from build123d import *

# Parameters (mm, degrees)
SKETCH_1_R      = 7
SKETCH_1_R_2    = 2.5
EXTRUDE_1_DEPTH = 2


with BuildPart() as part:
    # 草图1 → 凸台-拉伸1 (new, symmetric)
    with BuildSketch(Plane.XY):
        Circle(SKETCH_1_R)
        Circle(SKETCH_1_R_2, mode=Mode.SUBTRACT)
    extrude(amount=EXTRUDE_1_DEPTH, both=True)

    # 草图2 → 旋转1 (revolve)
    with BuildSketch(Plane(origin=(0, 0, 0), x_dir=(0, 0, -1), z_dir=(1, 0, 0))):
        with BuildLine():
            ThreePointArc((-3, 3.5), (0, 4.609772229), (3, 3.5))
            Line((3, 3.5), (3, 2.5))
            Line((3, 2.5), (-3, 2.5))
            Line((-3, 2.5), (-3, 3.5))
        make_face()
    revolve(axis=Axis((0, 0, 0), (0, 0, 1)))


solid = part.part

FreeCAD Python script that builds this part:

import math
import FreeCAD as App
import Part
import Sketcher

V = App.Vector
Q = App.Units.Quantity

doc = App.newDocument("Part")
body = doc.addObject("PartDesign::Body", "Body")

# Sketch on XY plane
sketch1 = body.newObject("Sketcher::SketchObject", "Sketch")
sketch1.AttachmentSupport = (doc.getObject("XY_Plane"), [""])
sketch1.MapMode = "FlatFace"
sketch1.addGeometry([
    Part.Circle(V(0, 0, 0), V(0, 0, 1), 7),
    Part.Circle(V(0, 0, 0), V(0, 0, 1), 2.5),
], False)
sketch1.addConstraint([
    Sketcher.Constraint("Coincident", 0, 3, -1, 1),
    Sketcher.Constraint("Coincident", 1, 3, -1, 1),
    Sketcher.Constraint("Diameter", 0, Q("14 mm")),
    Sketcher.Constraint("Diameter", 1, Q("5 mm")),
])
pad1 = body.newObject("PartDesign::Pad", "Pad")
pad1.Profile = sketch1
pad1.Length = 4
pad1.Midplane = True

# Sketch on YZ plane
sketch2 = body.newObject("Sketcher::SketchObject", "Sketch001")
sketch2.AttachmentSupport = (doc.getObject("YZ_Plane"), [""])
sketch2.MapMode = "FlatFace"
sketch2.addGeometry([
    Part.ArcOfCircle(Part.Circle(V(0, 0, 0), V(0, 0, 1), 4.609772), math.radians(-40.601295), math.radians(40.601295)),
    Part.LineSegment(V(3.5, 3, 0), V(2.5, 3, 0)),
    Part.LineSegment(V(2.5, 3, 0), V(2.5, -3, 0)),
    Part.LineSegment(V(2.5, -3, 0), V(3.5, -3, 0)),
], False)
sketch2.addConstraint([
    Sketcher.Constraint("Coincident", 0, 2, 1, 1),
    Sketcher.Constraint("Coincident", 1, 2, 2, 1),
    Sketcher.Constraint("Coincident", 2, 2, 3, 1),
    Sketcher.Constraint("Coincident", 3, 2, 0, 1),
    Sketcher.Constraint("Horizontal", 1),
    Sketcher.Constraint("Vertical", 2),
    Sketcher.Constraint("Horizontal", 3),
    Sketcher.Constraint("Coincident", 0, 3, -1, 1),
    Sketcher.Constraint("Vertical", 0, 2, 3, 2),
    Sketcher.Constraint("DistanceX", 1, 2, 1, 1, Q("1 mm")),
    Sketcher.Constraint("DistanceY", 2, 2, 2, 1, Q("6 mm")),
    Sketcher.Constraint("DistanceX", -1, 1, 0, 2, Q("3.5 mm")),
])
revolution = body.newObject("PartDesign::Revolution", "Revolution")
revolution.Profile = sketch2
revolution.ReferenceAxis = (sketch2, ["V_Axis"])
revolution.Angle = 360

doc.recompute()
